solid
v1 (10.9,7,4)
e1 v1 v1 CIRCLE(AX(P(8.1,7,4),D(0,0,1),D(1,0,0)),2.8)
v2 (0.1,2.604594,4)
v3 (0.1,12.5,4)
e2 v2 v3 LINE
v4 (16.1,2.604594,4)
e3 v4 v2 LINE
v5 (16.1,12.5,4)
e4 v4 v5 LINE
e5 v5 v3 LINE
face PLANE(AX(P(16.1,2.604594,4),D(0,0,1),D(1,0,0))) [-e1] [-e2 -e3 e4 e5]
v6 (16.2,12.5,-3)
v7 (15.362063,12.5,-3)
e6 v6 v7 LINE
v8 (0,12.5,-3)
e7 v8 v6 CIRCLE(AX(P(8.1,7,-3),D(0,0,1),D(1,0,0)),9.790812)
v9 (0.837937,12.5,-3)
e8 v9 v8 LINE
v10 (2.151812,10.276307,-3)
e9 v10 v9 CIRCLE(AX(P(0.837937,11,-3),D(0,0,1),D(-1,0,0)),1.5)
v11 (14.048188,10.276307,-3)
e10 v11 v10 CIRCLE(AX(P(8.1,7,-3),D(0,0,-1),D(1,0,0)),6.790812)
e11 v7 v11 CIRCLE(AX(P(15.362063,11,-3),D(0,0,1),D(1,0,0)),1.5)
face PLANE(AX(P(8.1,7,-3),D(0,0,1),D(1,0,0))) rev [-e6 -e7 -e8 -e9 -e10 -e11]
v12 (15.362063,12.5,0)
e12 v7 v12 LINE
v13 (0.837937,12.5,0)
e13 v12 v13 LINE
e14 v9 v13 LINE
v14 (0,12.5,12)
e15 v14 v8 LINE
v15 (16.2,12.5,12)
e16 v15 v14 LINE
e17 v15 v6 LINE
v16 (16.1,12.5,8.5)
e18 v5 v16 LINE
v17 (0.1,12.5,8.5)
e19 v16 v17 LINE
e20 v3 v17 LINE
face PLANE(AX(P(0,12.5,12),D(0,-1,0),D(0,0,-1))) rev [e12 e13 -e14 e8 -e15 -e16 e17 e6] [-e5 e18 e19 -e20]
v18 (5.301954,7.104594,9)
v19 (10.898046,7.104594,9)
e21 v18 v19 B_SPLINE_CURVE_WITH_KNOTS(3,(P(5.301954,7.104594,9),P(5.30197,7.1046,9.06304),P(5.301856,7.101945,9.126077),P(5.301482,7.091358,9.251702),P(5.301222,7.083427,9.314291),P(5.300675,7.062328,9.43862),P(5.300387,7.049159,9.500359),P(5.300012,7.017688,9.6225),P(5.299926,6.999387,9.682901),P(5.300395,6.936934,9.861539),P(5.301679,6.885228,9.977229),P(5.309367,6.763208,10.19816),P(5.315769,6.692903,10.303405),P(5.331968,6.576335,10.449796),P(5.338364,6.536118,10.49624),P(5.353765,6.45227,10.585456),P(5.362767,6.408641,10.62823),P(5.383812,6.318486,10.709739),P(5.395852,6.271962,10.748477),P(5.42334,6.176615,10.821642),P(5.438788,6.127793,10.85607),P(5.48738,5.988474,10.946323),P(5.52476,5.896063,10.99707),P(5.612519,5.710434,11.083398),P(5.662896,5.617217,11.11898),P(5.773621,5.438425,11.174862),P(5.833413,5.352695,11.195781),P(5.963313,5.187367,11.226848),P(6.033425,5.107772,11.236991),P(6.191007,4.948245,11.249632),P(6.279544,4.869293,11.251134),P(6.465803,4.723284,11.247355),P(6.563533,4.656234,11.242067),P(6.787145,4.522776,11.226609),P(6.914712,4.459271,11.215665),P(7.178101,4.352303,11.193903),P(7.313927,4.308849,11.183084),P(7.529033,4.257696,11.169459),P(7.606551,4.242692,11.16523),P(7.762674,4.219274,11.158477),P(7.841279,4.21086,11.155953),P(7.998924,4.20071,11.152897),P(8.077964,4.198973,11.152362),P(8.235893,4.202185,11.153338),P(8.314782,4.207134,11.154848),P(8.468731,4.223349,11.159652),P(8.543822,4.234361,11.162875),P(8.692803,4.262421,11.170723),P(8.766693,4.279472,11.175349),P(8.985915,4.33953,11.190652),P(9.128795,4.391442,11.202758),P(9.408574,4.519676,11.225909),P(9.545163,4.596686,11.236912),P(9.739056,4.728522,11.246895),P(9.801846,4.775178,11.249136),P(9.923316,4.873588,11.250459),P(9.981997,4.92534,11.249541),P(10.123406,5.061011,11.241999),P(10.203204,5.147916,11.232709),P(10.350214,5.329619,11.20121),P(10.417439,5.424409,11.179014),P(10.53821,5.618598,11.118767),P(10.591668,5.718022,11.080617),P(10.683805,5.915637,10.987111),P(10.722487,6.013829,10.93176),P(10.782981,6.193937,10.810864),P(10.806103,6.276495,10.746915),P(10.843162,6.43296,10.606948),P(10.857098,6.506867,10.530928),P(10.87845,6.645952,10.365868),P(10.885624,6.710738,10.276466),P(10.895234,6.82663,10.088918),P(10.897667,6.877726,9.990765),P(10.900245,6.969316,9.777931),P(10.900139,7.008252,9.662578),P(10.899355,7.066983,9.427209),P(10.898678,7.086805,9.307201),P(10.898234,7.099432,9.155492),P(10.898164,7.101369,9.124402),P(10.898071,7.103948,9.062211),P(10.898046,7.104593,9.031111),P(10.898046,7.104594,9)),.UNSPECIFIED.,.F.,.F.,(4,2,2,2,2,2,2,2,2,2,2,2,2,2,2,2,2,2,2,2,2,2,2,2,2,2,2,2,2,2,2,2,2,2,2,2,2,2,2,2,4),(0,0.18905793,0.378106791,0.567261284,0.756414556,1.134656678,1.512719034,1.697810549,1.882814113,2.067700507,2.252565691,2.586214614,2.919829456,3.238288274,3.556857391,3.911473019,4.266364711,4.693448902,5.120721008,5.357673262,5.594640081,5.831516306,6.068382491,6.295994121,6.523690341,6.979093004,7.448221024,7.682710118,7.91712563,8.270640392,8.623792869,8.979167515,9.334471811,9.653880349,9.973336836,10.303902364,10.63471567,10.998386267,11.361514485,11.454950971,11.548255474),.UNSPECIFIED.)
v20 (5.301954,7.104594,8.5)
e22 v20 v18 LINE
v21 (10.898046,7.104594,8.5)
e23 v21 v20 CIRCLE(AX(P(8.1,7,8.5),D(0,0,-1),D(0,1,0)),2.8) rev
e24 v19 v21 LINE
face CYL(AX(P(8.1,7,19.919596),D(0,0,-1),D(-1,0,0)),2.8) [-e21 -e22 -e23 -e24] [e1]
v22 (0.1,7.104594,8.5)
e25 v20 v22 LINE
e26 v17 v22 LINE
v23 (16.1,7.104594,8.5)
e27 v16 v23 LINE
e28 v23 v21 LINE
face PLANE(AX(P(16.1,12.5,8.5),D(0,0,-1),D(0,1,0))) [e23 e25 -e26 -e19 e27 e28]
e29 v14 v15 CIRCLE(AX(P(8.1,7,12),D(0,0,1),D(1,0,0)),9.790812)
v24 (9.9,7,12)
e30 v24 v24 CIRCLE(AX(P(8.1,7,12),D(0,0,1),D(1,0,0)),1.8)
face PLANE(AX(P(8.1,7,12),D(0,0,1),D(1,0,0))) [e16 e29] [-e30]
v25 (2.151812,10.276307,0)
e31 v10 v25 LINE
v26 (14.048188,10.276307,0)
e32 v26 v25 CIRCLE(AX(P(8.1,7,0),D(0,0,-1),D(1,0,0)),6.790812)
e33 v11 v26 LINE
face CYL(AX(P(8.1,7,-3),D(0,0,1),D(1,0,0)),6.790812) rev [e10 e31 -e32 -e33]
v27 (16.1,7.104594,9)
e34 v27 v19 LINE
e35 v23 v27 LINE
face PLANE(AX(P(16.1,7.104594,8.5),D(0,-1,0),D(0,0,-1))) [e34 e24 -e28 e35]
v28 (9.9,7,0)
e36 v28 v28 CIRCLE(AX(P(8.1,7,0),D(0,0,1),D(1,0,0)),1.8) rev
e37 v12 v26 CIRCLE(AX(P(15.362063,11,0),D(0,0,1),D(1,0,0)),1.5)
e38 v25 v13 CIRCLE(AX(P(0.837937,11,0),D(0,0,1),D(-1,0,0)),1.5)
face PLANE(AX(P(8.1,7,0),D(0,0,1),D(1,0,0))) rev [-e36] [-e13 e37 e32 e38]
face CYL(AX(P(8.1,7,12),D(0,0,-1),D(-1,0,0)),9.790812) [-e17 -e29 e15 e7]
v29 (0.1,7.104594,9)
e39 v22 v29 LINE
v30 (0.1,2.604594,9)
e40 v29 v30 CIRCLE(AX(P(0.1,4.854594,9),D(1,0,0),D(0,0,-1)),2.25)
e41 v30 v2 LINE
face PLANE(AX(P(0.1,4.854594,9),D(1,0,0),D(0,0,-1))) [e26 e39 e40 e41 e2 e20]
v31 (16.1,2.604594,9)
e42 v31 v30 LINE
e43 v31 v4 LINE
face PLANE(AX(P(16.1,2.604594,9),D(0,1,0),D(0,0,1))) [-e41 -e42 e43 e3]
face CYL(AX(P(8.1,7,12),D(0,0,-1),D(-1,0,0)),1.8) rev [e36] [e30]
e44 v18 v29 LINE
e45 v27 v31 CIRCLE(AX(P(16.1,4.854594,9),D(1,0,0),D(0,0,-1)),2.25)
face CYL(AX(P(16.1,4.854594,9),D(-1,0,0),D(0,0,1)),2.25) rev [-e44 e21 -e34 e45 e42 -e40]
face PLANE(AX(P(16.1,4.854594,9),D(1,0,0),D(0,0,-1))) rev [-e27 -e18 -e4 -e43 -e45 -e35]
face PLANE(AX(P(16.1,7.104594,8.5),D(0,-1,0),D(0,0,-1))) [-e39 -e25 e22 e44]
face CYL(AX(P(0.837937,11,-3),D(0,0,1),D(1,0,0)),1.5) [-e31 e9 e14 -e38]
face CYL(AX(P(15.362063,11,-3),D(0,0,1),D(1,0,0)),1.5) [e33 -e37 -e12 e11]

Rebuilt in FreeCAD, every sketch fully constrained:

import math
import FreeCAD as App
import Part
import Sketcher
Q = App.Units.Quantity

doc = App.newDocument("Part")
body = doc.addObject("PartDesign::Body", "Body")

sketch1 = body.newObject("Sketcher::SketchObject", "Sketch")
sketch1.AttachmentSupport = (doc.getObject("XY_Plane"), [""])
sketch1.MapMode = "FlatFace"
sketch1.addGeometry(Part.LineSegment(App.Vector(16.2, 12.5, 0), App.Vector(0, 12.5, 0)), False)
sketch1.addGeometry(Part.ArcOfCircle(Part.Circle(App.Vector(8.1, 7, 0), App.Vector(0, 0, 1), 9.790812), math.radians(145.823011), math.radians(394.176989)), False)
sketch1.addConstraint(Sketcher.Constraint("Coincident", 0, 1, 1, 2))
sketch1.addConstraint(Sketcher.Constraint("Coincident", 1, 1, 0, 2))
sketch1.addConstraint(Sketcher.Constraint("Horizontal", 0))
sketch1.addConstraint(Sketcher.Constraint("PointOnObject", 1, 1, -2))
sketch1.addConstraint(Sketcher.Constraint("DistanceX", 0, 2, 0, 1, Q("16.2 mm")))
sketch1.addConstraint(Sketcher.Constraint("DistanceY", -1, 1, 1, 3, Q("7 mm")))
sketch1.addConstraint(Sketcher.Constraint("DistanceY", -1, 1, 0, 1, Q("12.5 mm")))
pad1 = body.newObject("PartDesign::Pad", "Pad")
pad1.Profile = sketch1
pad1.Length = 12

sketch2 = body.newObject("Sketcher::SketchObject", "Sketch001")
sketch2.AttachmentSupport = (doc.getObject("XY_Plane"), [""])
sketch2.MapMode = "FlatFace"
sketch2.addGeometry(Part.Circle(App.Vector(8.1, 7, 0), App.Vector(0, 0, 1), 1.8), False)
sketch2.addConstraint(Sketcher.Constraint("Diameter", 0, Q("3.6 mm")))
sketch2.addConstraint(Sketcher.Constraint("DistanceY", -1, 1, 0, 3, Q("7 mm")))
sketch2.addConstraint(Sketcher.Constraint("DistanceX", -1, 1, 0, 3, Q("8.1 mm")))
pocket1 = body.newObject("PartDesign::Pocket", "Pocket")
pocket1.Profile = sketch2
pocket1.Type = "ThroughAll"
pocket1.Midplane = True

sketch3 = body.newObject("Sketcher::SketchObject", "Sketch002")
sketch3.AttachmentSupport = (doc.getObject("XY_Plane"), [""])
sketch3.MapMode = "FlatFace"
sketch3.addGeometry(Part.LineSegment(App.Vector(16.2, 12.5, 0), App.Vector(15.362063, 12.5, 0)), False)
sketch3.addGeometry(Part.ArcOfCircle(Part.Circle(App.Vector(15.362063, 11, 0), App.Vector(0, 0, 1), 1.5), math.radians(90), math.radians(208.846309)), False)
sketch3.addGeometry(Part.ArcOfCircle(Part.Circle(App.Vector(8.1, 7, 0), App.Vector(0, 0, 1), 6.790812), math.radians(151.153691), math.radians(388.846309)), False)
sketch3.addGeometry(Part.ArcOfCircle(Part.Circle(App.Vector(0.837937, 11, 0), App.Vector(0, 0, 1), 1.5), math.radians(-28.846309), math.radians(90)), False)
sketch3.addGeometry(Part.LineSegment(App.Vector(0.837937, 12.5, 0), App.Vector(0, 12.5, 0)), False)
sketch3.addGeometry(Part.ArcOfCircle(Part.Circle(App.Vector(8.1, 7, 0), App.Vector(0, 0, 1), 9.790812), math.radians(145.823011), math.radians(394.176989)), False)
sketch3.addConstraint(Sketcher.Constraint("Tangent", 0, 2, 1, 1))
sketch3.addConstraint(Sketcher.Constraint("Tangent", 1, 2, 2, 2))
sketch3.addConstraint(Sketcher.Constraint("Tangent", 2, 1, 3, 1))
sketch3.addConstraint(Sketcher.Constraint("Tangent", 3, 2, 4, 1))
sketch3.addConstraint(Sketcher.Constraint("Coincident", 4, 2, 5, 1))
sketch3.addConstraint(Sketcher.Constraint("Coincident", 5, 2, 0, 1))
sketch3.addConstraint(Sketcher.Constraint("Horizontal", 0))
sketch3.addConstraint(Sketcher.Constraint("Horizontal", 4))
sketch3.addConstraint(Sketcher.Constraint("Coincident", 5, 3, 2, 3))
sketch3.addConstraint(Sketcher.Constraint("Equal", 1, 3))
sketch3.addConstraint(Sketcher.Constraint("PointOnObject", 4, 2, -2))
sketch3.addConstraint(Sketcher.Constraint("Horizontal", 1, 3, 3, 3))
sketch3.addConstraint(Sketcher.Constraint("Radius", 1, Q("1.5 mm")))
sketch3.addConstraint(Sketcher.Constraint("DistanceY", -1, 1, 1, 3, Q("11 mm")))
sketch3.addConstraint(Sketcher.Constraint("DistanceY", -1, 1, 2, 3, Q("7 mm")))
sketch3.addConstraint(Sketcher.Constraint("DistanceX", -1, 1, 2, 3, Q("8.1 mm")))
sketch3.addConstraint(Sketcher.Constraint("Radius", 2, Q("6.790812 mm")))
pad2 = body.newObject("PartDesign::Pad", "Pad001")
pad2.Profile = sketch3
pad2.Length = 3
pad2.Reversed = True

sketch4 = body.newObject("Sketcher::SketchObject", "Sketch003")
sketch4.AttachmentSupport = (doc.getObject("YZ_Plane"), [""])
sketch4.MapMode = "FlatFace"
sketch4.AttachmentOffset = App.Placement(App.Vector(0, 0, 0.1), App.Rotation())
sketch4.addGeometry(Part.LineSegment(App.Vector(2.604594, 9, 0), App.Vector(2.604594, 4, 0)), False)
sketch4.addGeometry(Part.LineSegment(App.Vector(2.604594, 4, 0), App.Vector(12.5, 4, 0)), False)
sketch4.addGeometry(Part.LineSegment(App.Vector(12.5, 4, 0), App.Vector(12.5, 8.5, 0)), False)
sketch4.addGeometry(Part.LineSegment(App.Vector(12.5, 8.5, 0), App.Vector(7.104594, 8.5, 0)), False)
sketch4.addGeometry(Part.LineSegment(App.Vector(7.104594, 8.5, 0), App.Vector(7.104594, 9, 0)), False)
sketch4.addGeometry(Part.ArcOfCircle(Part.Circle(App.Vector(4.854594, 9, 0), App.Vector(0, 0, 1), 2.25), math.radians(0), math.radians(180)), False)
sketch4.addConstraint(Sketcher.Constraint("Coincident", 0, 2, 1, 1))
sketch4.addConstraint(Sketcher.Constraint("Coincident", 1, 2, 2, 1))
sketch4.addConstraint(Sketcher.Constraint("Coincident", 2, 2, 3, 1))
sketch4.addConstraint(Sketcher.Constraint("Coincident", 3, 2, 4, 1))
sketch4.addConstraint(Sketcher.Constraint("Tangent", 4, 2, 5, 1))
sketch4.addConstraint(Sketcher.Constraint("Tangent", 5, 2, 0, 1))
sketch4.addConstraint(Sketcher.Constraint("Vertical", 0))
sketch4.addConstraint(Sketcher.Constraint("Horizontal", 1))
sketch4.addConstraint(Sketcher.Constraint("Vertical", 2))
sketch4.addConstraint(Sketcher.Constraint("Horizontal", 3))
sketch4.addConstraint(Sketcher.Constraint("Vertical", 4))
sketch4.addConstraint(Sketcher.Constraint("DistanceY", 0, 2, 0, 1, Q("5 mm")))
sketch4.addConstraint(Sketcher.Constraint("Radius", 5, Q("2.25 mm")))
sketch4.addConstraint(Sketcher.Constraint("DistanceY", 2, 1, 2, 2, Q("4.5 mm")))
sketch4.addConstraint(Sketcher.Constraint("DistanceY", -1, 1, 5, 3, Q("9 mm")))
sketch4.addConstraint(Sketcher.Constraint("DistanceX", -1, 1, 1, 2, Q("12.5 mm")))
sketch4.addConstraint(Sketcher.Constraint("DistanceX", 1, 1, 1, 2, Q("9.895406 mm")))
pocket2 = body.newObject("PartDesign::Pocket", "Pocket001")
pocket2.Profile = sketch4
pocket2.Length = 16
pocket2.Reversed = True

sketch5 = body.newObject("Sketcher::SketchObject", "Sketch004")
sketch5.AttachmentSupport = (doc.getObject("XY_Plane"), [""])
sketch5.MapMode = "FlatFace"
sketch5.AttachmentOffset = App.Placement(App.Vector(0, 0, 4), App.Rotation())
sketch5.addGeometry(Part.Circle(App.Vector(8.1, 7, 0), App.Vector(0, 0, 1), 2.8), False)
sketch5.addGeometry(Part.Circle(App.Vector(8.1, 7, 0), App.Vector(0, 0, 1), 1.8), False)
sketch5.addConstraint(Sketcher.Constraint("Coincident", 1, 3, 0, 3))
sketch5.addConstraint(Sketcher.Constraint("Diameter", 0, Q("5.6 mm")))
sketch5.addConstraint(Sketcher.Constraint("Diameter", 1, Q("3.6 mm")))
sketch5.addConstraint(Sketcher.Constraint("DistanceY", -1, 1, 0, 3, Q("7 mm")))
sketch5.addConstraint(Sketcher.Constraint("DistanceX", -1, 1, 0, 3, Q("8.1 mm")))
pad3 = body.newObject("PartDesign::Pad", "Pad002")
pad3.Profile = sketch5
pad3.Length = 8

doc.recompute()
